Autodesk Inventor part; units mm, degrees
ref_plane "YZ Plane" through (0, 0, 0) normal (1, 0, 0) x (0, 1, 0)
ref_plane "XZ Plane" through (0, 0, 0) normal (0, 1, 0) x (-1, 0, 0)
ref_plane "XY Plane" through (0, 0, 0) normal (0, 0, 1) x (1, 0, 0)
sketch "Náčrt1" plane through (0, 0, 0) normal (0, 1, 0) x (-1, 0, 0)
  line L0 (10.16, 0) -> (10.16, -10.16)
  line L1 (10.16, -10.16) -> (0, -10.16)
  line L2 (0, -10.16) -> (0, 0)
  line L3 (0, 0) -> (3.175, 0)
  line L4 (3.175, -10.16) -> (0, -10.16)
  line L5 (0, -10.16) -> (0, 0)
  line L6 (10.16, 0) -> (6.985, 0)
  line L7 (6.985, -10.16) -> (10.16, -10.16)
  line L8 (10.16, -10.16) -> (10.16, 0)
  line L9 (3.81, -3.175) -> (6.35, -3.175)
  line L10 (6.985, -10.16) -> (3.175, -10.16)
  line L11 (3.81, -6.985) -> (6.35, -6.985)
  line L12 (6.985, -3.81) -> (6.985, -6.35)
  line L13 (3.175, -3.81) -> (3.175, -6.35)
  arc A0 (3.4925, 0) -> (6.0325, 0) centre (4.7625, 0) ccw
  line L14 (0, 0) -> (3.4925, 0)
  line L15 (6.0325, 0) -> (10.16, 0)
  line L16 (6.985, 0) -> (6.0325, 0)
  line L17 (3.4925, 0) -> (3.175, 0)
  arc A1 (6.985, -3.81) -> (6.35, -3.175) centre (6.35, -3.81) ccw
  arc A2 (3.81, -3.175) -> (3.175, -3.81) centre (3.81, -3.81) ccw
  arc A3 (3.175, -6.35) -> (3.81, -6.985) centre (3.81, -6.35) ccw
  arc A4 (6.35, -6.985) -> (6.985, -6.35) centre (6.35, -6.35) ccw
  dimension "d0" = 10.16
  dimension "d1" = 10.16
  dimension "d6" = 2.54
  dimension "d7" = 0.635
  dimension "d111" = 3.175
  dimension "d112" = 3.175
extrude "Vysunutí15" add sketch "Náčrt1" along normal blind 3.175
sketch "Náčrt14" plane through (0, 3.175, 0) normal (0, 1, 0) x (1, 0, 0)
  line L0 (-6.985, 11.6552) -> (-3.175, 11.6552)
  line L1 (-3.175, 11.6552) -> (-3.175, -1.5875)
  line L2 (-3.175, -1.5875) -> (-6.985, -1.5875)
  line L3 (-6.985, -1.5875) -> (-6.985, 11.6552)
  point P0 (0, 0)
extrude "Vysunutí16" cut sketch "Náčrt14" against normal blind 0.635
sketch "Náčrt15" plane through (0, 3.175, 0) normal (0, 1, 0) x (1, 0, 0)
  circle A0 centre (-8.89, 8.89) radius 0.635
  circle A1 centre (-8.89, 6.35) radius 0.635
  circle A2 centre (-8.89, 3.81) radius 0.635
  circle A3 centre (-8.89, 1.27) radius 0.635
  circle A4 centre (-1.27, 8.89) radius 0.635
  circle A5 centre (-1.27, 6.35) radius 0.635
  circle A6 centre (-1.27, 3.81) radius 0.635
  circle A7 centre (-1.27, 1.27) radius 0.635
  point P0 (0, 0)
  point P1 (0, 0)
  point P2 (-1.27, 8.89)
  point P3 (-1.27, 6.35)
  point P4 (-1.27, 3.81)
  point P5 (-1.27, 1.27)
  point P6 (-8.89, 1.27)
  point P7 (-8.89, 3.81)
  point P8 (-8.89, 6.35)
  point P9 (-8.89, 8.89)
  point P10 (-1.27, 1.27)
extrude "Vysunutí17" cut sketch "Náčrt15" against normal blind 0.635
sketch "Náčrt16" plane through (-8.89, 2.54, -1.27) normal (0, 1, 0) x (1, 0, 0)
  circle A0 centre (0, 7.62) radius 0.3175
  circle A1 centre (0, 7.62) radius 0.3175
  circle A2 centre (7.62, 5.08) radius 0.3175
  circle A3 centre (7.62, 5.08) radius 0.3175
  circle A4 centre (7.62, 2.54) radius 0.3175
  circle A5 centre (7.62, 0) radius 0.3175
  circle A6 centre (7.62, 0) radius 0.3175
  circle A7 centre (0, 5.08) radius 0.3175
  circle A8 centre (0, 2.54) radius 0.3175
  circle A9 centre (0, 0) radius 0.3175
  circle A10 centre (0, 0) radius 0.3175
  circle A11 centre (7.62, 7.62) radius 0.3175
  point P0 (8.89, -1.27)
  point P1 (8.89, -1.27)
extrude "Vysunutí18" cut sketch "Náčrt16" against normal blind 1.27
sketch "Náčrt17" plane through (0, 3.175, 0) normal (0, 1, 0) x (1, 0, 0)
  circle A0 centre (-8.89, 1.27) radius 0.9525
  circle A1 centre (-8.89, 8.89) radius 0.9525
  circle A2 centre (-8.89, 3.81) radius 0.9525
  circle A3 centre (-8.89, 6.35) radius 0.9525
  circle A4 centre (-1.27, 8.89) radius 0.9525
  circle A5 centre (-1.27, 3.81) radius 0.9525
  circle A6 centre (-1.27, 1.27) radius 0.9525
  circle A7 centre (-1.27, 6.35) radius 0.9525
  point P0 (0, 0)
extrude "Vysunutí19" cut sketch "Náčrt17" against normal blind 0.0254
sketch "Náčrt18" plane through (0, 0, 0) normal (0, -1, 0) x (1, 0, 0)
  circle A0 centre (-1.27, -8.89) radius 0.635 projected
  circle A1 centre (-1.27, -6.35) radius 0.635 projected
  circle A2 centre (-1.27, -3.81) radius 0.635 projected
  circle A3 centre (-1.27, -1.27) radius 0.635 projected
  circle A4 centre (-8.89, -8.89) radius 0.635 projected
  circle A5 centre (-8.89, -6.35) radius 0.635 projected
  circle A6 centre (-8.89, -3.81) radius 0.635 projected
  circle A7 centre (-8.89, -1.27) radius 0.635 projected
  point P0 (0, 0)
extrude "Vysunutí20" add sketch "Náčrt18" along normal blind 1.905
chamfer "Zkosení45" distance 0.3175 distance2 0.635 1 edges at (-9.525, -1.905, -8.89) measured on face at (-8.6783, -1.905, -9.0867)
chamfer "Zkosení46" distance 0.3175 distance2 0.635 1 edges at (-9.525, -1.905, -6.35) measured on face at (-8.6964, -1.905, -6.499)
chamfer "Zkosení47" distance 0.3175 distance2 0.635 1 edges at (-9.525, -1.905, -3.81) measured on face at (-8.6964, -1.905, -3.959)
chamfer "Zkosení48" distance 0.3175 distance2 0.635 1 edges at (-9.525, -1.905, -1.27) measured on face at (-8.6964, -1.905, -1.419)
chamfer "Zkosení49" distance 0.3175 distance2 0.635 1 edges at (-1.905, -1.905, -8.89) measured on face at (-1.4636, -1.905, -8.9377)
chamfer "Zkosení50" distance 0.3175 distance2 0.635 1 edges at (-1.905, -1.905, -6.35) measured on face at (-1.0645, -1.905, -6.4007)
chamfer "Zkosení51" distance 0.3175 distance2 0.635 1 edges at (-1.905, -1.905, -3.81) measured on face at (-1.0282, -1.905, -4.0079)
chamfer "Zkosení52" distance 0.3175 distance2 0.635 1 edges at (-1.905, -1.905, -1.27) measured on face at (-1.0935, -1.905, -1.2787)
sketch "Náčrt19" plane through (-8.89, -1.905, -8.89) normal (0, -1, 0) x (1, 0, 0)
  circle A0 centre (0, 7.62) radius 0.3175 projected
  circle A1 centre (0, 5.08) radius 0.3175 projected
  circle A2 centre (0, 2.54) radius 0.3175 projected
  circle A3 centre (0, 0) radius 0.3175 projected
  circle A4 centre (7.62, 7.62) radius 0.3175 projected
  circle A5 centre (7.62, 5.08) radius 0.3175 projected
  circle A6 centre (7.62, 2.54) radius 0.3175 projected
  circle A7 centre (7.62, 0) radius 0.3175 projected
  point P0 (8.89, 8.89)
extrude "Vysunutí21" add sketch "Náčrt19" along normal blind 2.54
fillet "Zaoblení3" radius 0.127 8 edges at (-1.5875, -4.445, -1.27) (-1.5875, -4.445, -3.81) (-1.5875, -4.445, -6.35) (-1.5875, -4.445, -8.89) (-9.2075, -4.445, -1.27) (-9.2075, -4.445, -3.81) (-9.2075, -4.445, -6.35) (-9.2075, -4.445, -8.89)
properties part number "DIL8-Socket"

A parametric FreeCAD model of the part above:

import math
import FreeCAD as App
import Part
import Sketcher
from FreeCAD import Vector
Q = App.Units.Quantity


def edges_at(feature, points):
    """Names of the edges that pass closest to the given points."""
    edges = feature.Shape.Edges
    near = lambda p: min(range(len(edges)), key=lambda i: edges[i].distToShape(Part.Vertex(*p))[0])
    return sorted({f"Edge{near(p) + 1}" for p in points})

doc = App.newDocument("Part")
body = doc.addObject("PartDesign::Body", "Body")

# Sketch on XZ plane
sketch1 = body.newObject("Sketcher::SketchObject", "Sketch")
sketch1.AttachmentSupport = (doc.getObject("XZ_Plane"), [""])
sketch1.MapMode = "FlatFace"
sketch1.addGeometry([
    Part.LineSegment(Vector(-10.2, -10.2, 0), Vector(-10.2, 0, 0)),  # 0
    Part.LineSegment(Vector(-10.2, 0, 0), Vector(-6, 0, 0)),  # 1
    Part.ArcOfCircle(Part.Circle(Vector(-4.8, 0, 0), Vector(0, 0, 1), 1.3), math.radians(180), math.radians(360)),  # 2
    Part.LineSegment(Vector(-3.5, 0, 0), Vector(0, 0, 0)),  # 3
    Part.LineSegment(Vector(0, 0, 0), Vector(0, -10.2, 0)),  # 4
    Part.LineSegment(Vector(0, -10.2, 0), Vector(-10.2, -10.2, 0)),  # 5
    Part.ArcOfCircle(Part.Circle(Vector(-3.8, -3.8, 0), Vector(0, 0, 1), 0.6), math.radians(0), math.radians(90)),  # 6
    Part.LineSegment(Vector(-3.8, -3.2, 0), Vector(-6.3, -3.2, 0)),  # 7
    Part.ArcOfCircle(Part.Circle(Vector(-6.3, -3.8, 0), Vector(0, 0, 1), 0.6), math.radians(90), math.radians(180)),  # 8
    Part.LineSegment(Vector(-7, -3.8, 0), Vector(-7, -6.3, 0)),  # 9
    Part.ArcOfCircle(Part.Circle(Vector(-6.3, -6.3, 0), Vector(0, 0, 1), 0.6), math.radians(180), math.radians(270)),  # 10
    Part.LineSegment(Vector(-6.3, -7, 0), Vector(-3.8, -7, 0)),  # 11
    Part.ArcOfCircle(Part.Circle(Vector(-3.8, -6.3, 0), Vector(0, 0, 1), 0.6), math.radians(-90), math.radians(0)),  # 12
    Part.LineSegment(Vector(-3.2, -6.3, 0), Vector(-3.2, -3.8, 0)),  # 13
], False)
sketch1.addConstraint([
    Sketcher.Constraint("Coincident", 0, 2, 1, 1),
    Sketcher.Constraint("Coincident", 1, 2, 2, 1),
    Sketcher.Constraint("Coincident", 2, 2, 3, 1),
    Sketcher.Constraint("Coincident", 3, 2, 4, 1),
    Sketcher.Constraint("Coincident", 4, 2, 5, 1),
    Sketcher.Constraint("Coincident", 5, 2, 0, 1),
    Sketcher.Constraint("Tangent", 6, 2, 7, 1),
    Sketcher.Constraint("Tangent", 7, 2, 8, 1),
    Sketcher.Constraint("Tangent", 8, 2, 9, 1),
    Sketcher.Constraint("Tangent", 9, 2, 10, 1),
    Sketcher.Constraint("Tangent", 10, 2, 11, 1),
    Sketcher.Constraint("Tangent", 11, 2, 12, 1),
    Sketcher.Constraint("Tangent", 12, 2, 13, 1),
    Sketcher.Constraint("Tangent", 13, 2, 6, 1),
    Sketcher.Constraint("Vertical", 0),
    Sketcher.Constraint("Horizontal", 1),
    Sketcher.Constraint("Horizontal", 3),
    Sketcher.Constraint("Vertical", 4),
    Sketcher.Constraint("Horizontal", 5),
    Sketcher.Constraint("Horizontal", 7),
    Sketcher.Constraint("Vertical", 9),
    Sketcher.Constraint("Horizontal", 11),
    Sketcher.Constraint("Vertical", 13),
    Sketcher.Constraint("Coincident", 3, 2, -1, 1),
    Sketcher.Constraint("Equal", 6, 8),
    Sketcher.Constraint("Equal", 8, 10),
    Sketcher.Constraint("Equal", 10, 12),
    Sketcher.Constraint("PointOnObject", 2, 3, -1),
    Sketcher.Constraint("PointOnObject", 0, 2, -1),
    Sketcher.Constraint("Equal", 5, 0),
    Sketcher.Constraint("Equal", 11, 9),
    Sketcher.Constraint("Radius", 2, Q("0.05 in")),
    Sketcher.Constraint("DistanceX", 5, 2, 5, 1, Q("0.4 in")),
    Sketcher.Constraint("DistanceX", 7, 2, 7, 1, Q("0.1 in")),
    Sketcher.Constraint("Radius", 6, Q("0.025 in")),
    Sketcher.Constraint("DistanceY", 6, 2, -1, 1, Q("0.125 in")),
    Sketcher.Constraint("DistanceX", 12, 2, -1, 1, Q("0.125 in")),
    Sketcher.Constraint("DistanceX", 1, 1, 1, 2, Q("0.1625 in")),
])
pad1 = body.newObject("PartDesign::Pad", "Pad")
pad1.Profile = sketch1
pad1.Length = Q("0.125 in")
pad1.Reversed = True

# Sketch on XZ plane
sketch2 = body.newObject("Sketcher::SketchObject", "Sketch001")
sketch2.AttachmentSupport = (doc.getObject("XZ_Plane"), [""])
sketch2.MapMode = "FlatFace"
sketch2.AttachmentOffset = App.Placement(Vector(0, 0, -0.125 * 25.4), App.Rotation())
sketch2.addGeometry([
    Part.LineSegment(Vector(-3.2, -11.7, 0), Vector(-7, -11.7, 0)),
    Part.LineSegment(Vector(-7, -11.7, 0), Vector(-7, 1.6, 0)),
    Part.LineSegment(Vector(-7, 1.6, 0), Vector(-3.2, 1.6, 0)),
    Part.LineSegment(Vector(-3.2, 1.6, 0), Vector(-3.2, -11.7, 0)),
], False)
sketch2.addConstraint([
    Sketcher.Constraint("Coincident", 0, 2, 1, 1),
    Sketcher.Constraint("Coincident", 1, 2, 2, 1),
    Sketcher.Constraint("Coincident", 2, 2, 3, 1),
    Sketcher.Constraint("Coincident", 3, 2, 0, 1),
    Sketcher.Constraint("Horizontal", 0),
    Sketcher.Constraint("Vertical", 1),
    Sketcher.Constraint("Horizontal", 2),
    Sketcher.Constraint("Vertical", 3),
    Sketcher.Constraint("DistanceX", 0, 2, 0, 1, Q("0.15 in")),
    Sketcher.Constraint("DistanceX", 0, 2, -1, 1, Q("0.275 in")),
    Sketcher.Constraint("DistanceY", -1, 1, 1, 2, Q("0.0625 in")),
    Sketcher.Constraint("DistanceY", 1, 1, 1, 2, Q("13.2427 mm")),
])
pocket1 = body.newObject("PartDesign::Pocket", "Pocket")
pocket1.Profile = sketch2
pocket1.Length = Q("0.025 in")
pocket1.Reversed = True

# Sketch on XZ plane
sketch3 = body.newObject("Sketcher::SketchObject", "Sketch002")
sketch3.AttachmentSupport = (doc.getObject("XZ_Plane"), [""])
sketch3.MapMode = "FlatFace"
sketch3.AttachmentOffset = App.Placement(Vector(0, 0, -0.125 * 25.4), App.Rotation())
sketch3.addGeometry([
    Part.Circle(Vector(-8.9, -8.9, 0), Vector(0, 0, 1), 0.6),  # 0
    Part.Circle(Vector(-8.9, -6.3, 0), Vector(0, 0, 1), 0.6),  # 1
    Part.Circle(Vector(-8.9, -3.8, 0), Vector(0, 0, 1), 0.6),  # 2
    Part.Circle(Vector(-8.9, -1.3, 0), Vector(0, 0, 1), 0.6),  # 3
    Part.Circle(Vector(-1.3, -8.9, 0), Vector(0, 0, 1), 0.6),  # 4
    Part.Circle(Vector(-1.3, -6.3, 0), Vector(0, 0, 1), 0.6),  # 5
    Part.Circle(Vector(-1.3, -3.8, 0), Vector(0, 0, 1), 0.6),  # 6
    Part.Circle(Vector(-1.3, -1.3, 0), Vector(0, 0, 1), 0.6),  # 7
], False)
sketch3.addConstraint([
    Sketcher.Constraint("Equal", 0, 1),
    Sketcher.Constraint("Equal", 1, 2),
    Sketcher.Constraint("Equal", 2, 3),
    Sketcher.Constraint("Equal", 3, 4),
    Sketcher.Constraint("Equal", 4, 5),
    Sketcher.Constraint("Equal", 5, 6),
    Sketcher.Constraint("Equal", 6, 7),
    Sketcher.Constraint("Horizontal", 0, 3, 4, 3),
    Sketcher.Constraint("Horizontal", 1, 3, 5, 3),
    Sketcher.Constraint("Horizontal", 2, 3, 6, 3),
    Sketcher.Constraint("Horizontal", 3, 3, 7, 3),
    Sketcher.Constraint("Vertical", 0, 3, 1, 3),
    Sketcher.Constraint("Vertical", 1, 3, 2, 3),
    Sketcher.Constraint("Vertical", 2, 3, 3, 3),
    Sketcher.Constraint("Vertical", 4, 3, 5, 3),
    Sketcher.Constraint("Vertical", 5, 3, 6, 3),
    Sketcher.Constraint("Vertical", 6, 3, 7, 3),
    Sketcher.Constraint("Diameter", 0, Q("0.05 in")),
    Sketcher.Constraint("DistanceY", 0, 3, 1, 3, Q("0.1 in")),
    Sketcher.Constraint("DistanceY", 1, 3, 2, 3, Q("0.1 in")),
    Sketcher.Constraint("DistanceY", 2, 3, 3, 3, Q("0.1 in")),
    Sketcher.Constraint("DistanceX", 0, 3, 4, 3, Q("0.3 in")),
    Sketcher.Constraint("DistanceX", 0, 3, -1, 1, Q("0.35 in")),
    Sketcher.Constraint("DistanceY", 0, 3, -1, 1, Q("0.35 in")),
])
pocket2 = body.newObject("PartDesign::Pocket", "Pocket001")
pocket2.Profile = sketch3
pocket2.Length = Q("0.025 in")
pocket2.Reversed = True

# Sketch on XZ plane
sketch4 = body.newObject("Sketcher::SketchObject", "Sketch003")
sketch4.AttachmentSupport = (doc.getObject("XZ_Plane"), [""])
sketch4.MapMode = "FlatFace"
sketch4.AttachmentOffset = App.Placement(Vector(0, 0, -0.1 * 25.4), App.Rotation())
sketch4.addGeometry([
    Part.Circle(Vector(-8.89, -8.89, 0), Vector(0, 0, 1), 0.32),  # 0
    Part.Circle(Vector(-1.27, -6.35, 0), Vector(0, 0, 1), 0.32),  # 1
    Part.Circle(Vector(-1.27, -3.81, 0), Vector(0, 0, 1), 0.32),  # 2
    Part.Circle(Vector(-1.27, -1.27, 0), Vector(0, 0, 1), 0.32),  # 3
    Part.Circle(Vector(-8.89, -6.35, 0), Vector(0, 0, 1), 0.32),  # 4
    Part.Circle(Vector(-8.89, -3.81, 0), Vector(0, 0, 1), 0.32),  # 5
    Part.Circle(Vector(-8.89, -1.27, 0), Vector(0, 0, 1), 0.32),  # 6
    Part.Circle(Vector(-1.27, -8.89, 0), Vector(0, 0, 1), 0.32),  # 7
], False)
sketch4.addConstraint([
    Sketcher.Constraint("Equal", 0, 1),
    Sketcher.Constraint("Equal", 1, 2),
    Sketcher.Constraint("Equal", 2, 3),
    Sketcher.Constraint("Equal", 3, 4),
    Sketcher.Constraint("Equal", 4, 5),
    Sketcher.Constraint("Equal", 5, 6),
    Sketcher.Constraint("Equal", 6, 7),
    Sketcher.Constraint("Horizontal", 1, 3, 4, 3),
    Sketcher.Constraint("Horizontal", 2, 3, 5, 3),
    Sketcher.Constraint("Horizontal", 3, 3, 6, 3),
    Sketcher.Constraint("Horizontal", 0, 3, 7, 3),
    Sketcher.Constraint("Vertical", 1, 3, 2, 3),
    Sketcher.Constraint("Vertical", 2, 3, 3, 3),
    Sketcher.Constraint("Vertical", 0, 3, 4, 3),
    Sketcher.Constraint("Vertical", 4, 3, 5, 3),
    Sketcher.Constraint("Vertical", 5, 3, 6, 3),
    Sketcher.Constraint("Vertical", 3, 3, 7, 3),
    Sketcher.Constraint("Diameter", 0, Q("0.025 in")),
    Sketcher.Constraint("DistanceX", 0, 3, 1, 3, Q("0.3 in")),
    Sketcher.Constraint("DistanceY", 0, 3, 1, 3, Q("0.1 in")),
    Sketcher.Constraint("DistanceY", 1, 3, 2, 3, Q("0.1 in")),
    Sketcher.Constraint("DistanceY", 2, 3, 3, 3, Q("0.1 in")),
    Sketcher.Constraint("DistanceX", 0, 3, -1, 1, Q("0.35 in")),
    Sketcher.Constraint("DistanceY", 0, 3, -1, 1, Q("0.35 in")),
])
pocket3 = body.newObject("PartDesign::Pocket", "Pocket002")
pocket3.Profile = sketch4
pocket3.Length = Q("0.05 in")
pocket3.Reversed = True

# Sketch on XZ plane
sketch5 = body.newObject("Sketcher::SketchObject", "Sketch004")
sketch5.AttachmentSupport = (doc.getObject("XZ_Plane"), [""])
sketch5.MapMode = "FlatFace"
sketch5.AttachmentOffset = App.Placement(Vector(0, 0, -0.125 * 25.4), App.Rotation())
sketch5.addGeometry([
    Part.Circle(Vector(-8.9, -1.3, 0), Vector(0, 0, 1), 1),  # 0
    Part.Circle(Vector(-8.9, -8.9, 0), Vector(0, 0, 1), 1),  # 1
    Part.Circle(Vector(-8.9, -3.8, 0), Vector(0, 0, 1), 1),  # 2
    Part.Circle(Vector(-8.9, -6.3, 0), Vector(0, 0, 1), 1),  # 3
    Part.Circle(Vector(-1.3, -8.9, 0), Vector(0, 0, 1), 1),  # 4
    Part.Circle(Vector(-1.3, -3.8, 0), Vector(0, 0, 1), 1),  # 5
    Part.Circle(Vector(-1.3, -1.3, 0), Vector(0, 0, 1), 1),  # 6
    Part.Circle(Vector(-1.3, -6.3, 0), Vector(0, 0, 1), 1),  # 7
], False)
sketch5.addConstraint([
    Sketcher.Constraint("Equal", 0, 1),
    Sketcher.Constraint("Equal", 1, 2),
    Sketcher.Constraint("Equal", 2, 3),
    Sketcher.Constraint("Equal", 3, 4),
    Sketcher.Constraint("Equal", 4, 5),
    Sketcher.Constraint("Equal", 5, 6),
    Sketcher.Constraint("Equal", 6, 7),
    Sketcher.Constraint("Horizontal", 1, 3, 4, 3),
    Sketcher.Constraint("Horizontal", 2, 3, 5, 3),
    Sketcher.Constraint("Horizontal", 0, 3, 6, 3),
    Sketcher.Constraint("Horizontal", 3, 3, 7, 3),
    Sketcher.Constraint("Vertical", 0, 3, 1, 3),
    Sketcher.Constraint("Vertical", 1, 3, 2, 3),
    Sketcher.Constraint("Vertical", 2, 3, 3, 3),
    Sketcher.Constraint("Vertical", 4, 3, 5, 3),
    Sketcher.Constraint("Vertical", 5, 3, 6, 3),
    Sketcher.Constraint("Vertical", 6, 3, 7, 3),
    Sketcher.Constraint("Diameter", 0, Q("0.075 in")),
    Sketcher.Constraint("DistanceY", 1, 3, 0, 3, Q("0.3 in")),
    Sketcher.Constraint("DistanceY", 2, 3, 0, 3, Q("0.1 in")),
    Sketcher.Constraint("DistanceY", 3, 3, 2, 3, Q("0.1 in")),
    Sketcher.Constraint("DistanceX", 1, 3, 4, 3, Q("0.3 in")),
    Sketcher.Constraint("DistanceX", 0, 3, -1, 1, Q("0.35 in")),
    Sketcher.Constraint("DistanceY", 0, 3, -1, 1, Q("0.05 in")),
])
pocket4 = body.newObject("PartDesign::Pocket", "Pocket003")
pocket4.Profile = sketch5
pocket4.Length = Q("0.001 in")
pocket4.Reversed = True

# Sketch on XZ plane
sketch6 = body.newObject("Sketcher::SketchObject", "Sketch005")
sketch6.AttachmentSupport = (doc.getObject("XZ_Plane"), [""])
sketch6.MapMode = "FlatFace"
sketch6.addGeometry([
    Part.Circle(Vector(-1.3, -8.9, 0), Vector(0, 0, 1), 0.6),  # 0
    Part.Circle(Vector(-1.3, -6.3, 0), Vector(0, 0, 1), 0.6),  # 1
    Part.Circle(Vector(-1.3, -3.8, 0), Vector(0, 0, 1), 0.6),  # 2
    Part.Circle(Vector(-1.3, -1.3, 0), Vector(0, 0, 1), 0.6),  # 3
    Part.Circle(Vector(-8.9, -8.9, 0), Vector(0, 0, 1), 0.6),  # 4
    Part.Circle(Vector(-8.9, -6.3, 0), Vector(0, 0, 1), 0.6),  # 5
    Part.Circle(Vector(-8.9, -3.8, 0), Vector(0, 0, 1), 0.6),  # 6
    Part.Circle(Vector(-8.9, -1.3, 0), Vector(0, 0, 1), 0.6),  # 7
], False)
sketch6.addConstraint([
    Sketcher.Constraint("Equal", 0, 1),
    Sketcher.Constraint("Equal", 1, 2),
    Sketcher.Constraint("Equal", 2, 3),
    Sketcher.Constraint("Equal", 3, 4),
    Sketcher.Constraint("Equal", 4, 5),
    Sketcher.Constraint("Equal", 5, 6),
    Sketcher.Constraint("Equal", 6, 7),
    Sketcher.Constraint("Horizontal", 0, 3, 4, 3),
    Sketcher.Constraint("Horizontal", 1, 3, 5, 3),
    Sketcher.Constraint("Horizontal", 2, 3, 6, 3),
    Sketcher.Constraint("Horizontal", 3, 3, 7, 3),
    Sketcher.Constraint("Vertical", 0, 3, 1, 3),
    Sketcher.Constraint("Vertical", 1, 3, 2, 3),
    Sketcher.Constraint("Vertical", 2, 3, 3, 3),
    Sketcher.Constraint("Vertical", 4, 3, 5, 3),
    Sketcher.Constraint("Vertical", 5, 3, 6, 3),
    Sketcher.Constraint("Vertical", 6, 3, 7, 3),
    Sketcher.Constraint("Diameter", 0, Q("0.05 in")),
    Sketcher.Constraint("DistanceY", 0, 3, 1, 3, Q("0.1 in")),
    Sketcher.Constraint("DistanceY", 1, 3, 2, 3, Q("0.1 in")),
    Sketcher.Constraint("DistanceY", 2, 3, 3, 3, Q("0.1 in")),
    Sketcher.Constraint("DistanceX", 4, 3, 0, 3, Q("0.3 in")),
    Sketcher.Constraint("DistanceX", 0, 3, -1, 1, Q("0.05 in")),
    Sketcher.Constraint("DistanceY", 0, 3, -1, 1, Q("0.35 in")),
])
pad2 = body.newObject("PartDesign::Pad", "Pad001")
pad2.Profile = sketch6
pad2.Length = Q("0.075 in")
doc.recompute()

chamfer = body.newObject("PartDesign::Chamfer", "Chamfer")
chamfer.Base = (pad2, edges_at(pad2, [(-9.525, -1.905, -8.89)]))
chamfer.ChamferType = "Two distances"
chamfer.Size = Q("0.0125 in")
chamfer.Size2 = Q("0.025 in")
chamfer.FlipDirection = True
doc.recompute()

chamfer2 = body.newObject("PartDesign::Chamfer", "Chamfer001")
chamfer2.Base = (chamfer, edges_at(chamfer, [(-9.525, -1.905, -6.35)]))
chamfer2.ChamferType = "Two distances"
chamfer2.Size = Q("0.0125 in")
chamfer2.Size2 = Q("0.025 in")
chamfer2.FlipDirection = True
doc.recompute()

chamfer3 = body.newObject("PartDesign::Chamfer", "Chamfer002")
chamfer3.Base = (chamfer2, edges_at(chamfer2, [(-9.525, -1.905, -3.81)]))
chamfer3.ChamferType = "Two distances"
chamfer3.Size = Q("0.0125 in")
chamfer3.Size2 = Q("0.025 in")
chamfer3.FlipDirection = True
doc.recompute()

chamfer4 = body.newObject("PartDesign::Chamfer", "Chamfer003")
chamfer4.Base = (chamfer3, edges_at(chamfer3, [(-9.525, -1.905, -1.27)]))
chamfer4.ChamferType = "Two distances"
chamfer4.Size = Q("0.0125 in")
chamfer4.Size2 = Q("0.025 in")
chamfer4.FlipDirection = True
doc.recompute()

chamfer5 = body.newObject("PartDesign::Chamfer", "Chamfer004")
chamfer5.Base = (chamfer4, edges_at(chamfer4, [(-1.905, -1.905, -8.89)]))
chamfer5.ChamferType = "Two distances"
chamfer5.Size = Q("0.0125 in")
chamfer5.Size2 = Q("0.025 in")
chamfer5.FlipDirection = True
doc.recompute()

chamfer6 = body.newObject("PartDesign::Chamfer", "Chamfer005")
chamfer6.Base = (chamfer5, edges_at(chamfer5, [(-1.905, -1.905, -6.35)]))
chamfer6.ChamferType = "Two distances"
chamfer6.Size = Q("0.0125 in")
chamfer6.Size2 = Q("0.025 in")
chamfer6.FlipDirection = True
doc.recompute()

chamfer7 = body.newObject("PartDesign::Chamfer", "Chamfer006")
chamfer7.Base = (chamfer6, edges_at(chamfer6, [(-1.905, -1.905, -3.81)]))
chamfer7.ChamferType = "Two distances"
chamfer7.Size = Q("0.0125 in")
chamfer7.Size2 = Q("0.025 in")
chamfer7.FlipDirection = True
doc.recompute()

chamfer8 = body.newObject("PartDesign::Chamfer", "Chamfer007")
chamfer8.Base = (chamfer7, edges_at(chamfer7, [(-1.905, -1.905, -1.27)]))
chamfer8.ChamferType = "Two distances"
chamfer8.Size = Q("0.0125 in")
chamfer8.Size2 = Q("0.025 in")
chamfer8.FlipDirection = True

# Sketch on XZ plane
sketch7 = body.newObject("Sketcher::SketchObject", "Sketch006")
sketch7.AttachmentSupport = (doc.getObject("XZ_Plane"), [""])
sketch7.MapMode = "FlatFace"
sketch7.AttachmentOffset = App.Placement(Vector(0, 0, 0.075 * 25.4), App.Rotation())
sketch7.addGeometry([
    Part.Circle(Vector(-8.89, -1.27, 0), Vector(0, 0, 1), 0.32),  # 0
    Part.Circle(Vector(-8.89, -3.81, 0), Vector(0, 0, 1), 0.32),  # 1
    Part.Circle(Vector(-8.89, -6.35, 0), Vector(0, 0, 1), 0.32),  # 2
    Part.Circle(Vector(-8.89, -8.89, 0), Vector(0, 0, 1), 0.32),  # 3
    Part.Circle(Vector(-1.27, -1.27, 0), Vector(0, 0, 1), 0.32),  # 4
    Part.Circle(Vector(-1.27, -3.81, 0), Vector(0, 0, 1), 0.32),  # 5
    Part.Circle(Vector(-1.27, -6.35, 0), Vector(0, 0, 1), 0.32),  # 6
    Part.Circle(Vector(-1.27, -8.89, 0), Vector(0, 0, 1), 0.32),  # 7
], False)
sketch7.addConstraint([
    Sketcher.Constraint("Equal", 0, 1),
    Sketcher.Constraint("Equal", 1, 2),
    Sketcher.Constraint("Equal", 2, 3),
    Sketcher.Constraint("Equal", 3, 4),
    Sketcher.Constraint("Equal", 4, 5),
    Sketcher.Constraint("Equal", 5, 6),
    Sketcher.Constraint("Equal", 6, 7),
    Sketcher.Constraint("Horizontal", 0, 3, 4, 3),
    Sketcher.Constraint("Horizontal", 1, 3, 5, 3),
    Sketcher.Constraint("Horizontal", 2, 3, 6, 3),
    Sketcher.Constraint("Horizontal", 3, 3, 7, 3),
    Sketcher.Constraint("Vertical", 0, 3, 1, 3),
    Sketcher.Constraint("Vertical", 1, 3, 2, 3),
    Sketcher.Constraint("Vertical", 2, 3, 3, 3),
    Sketcher.Constraint("Vertical", 4, 3, 5, 3),
    Sketcher.Constraint("Vertical", 5, 3, 6, 3),
    Sketcher.Constraint("Vertical", 6, 3, 7, 3),
    Sketcher.Constraint("Diameter", 0, Q("0.025 in")),
    Sketcher.Constraint("DistanceY", 1, 3, 0, 3, Q("0.1 in")),
    Sketcher.Constraint("DistanceY", 2, 3, 1, 3, Q("0.1 in")),
    Sketcher.Constraint("DistanceY", 3, 3, 2, 3, Q("0.1 in")),
    Sketcher.Constraint("DistanceX", 0, 3, 4, 3, Q("0.3 in")),
    Sketcher.Constraint("DistanceX", 0, 3, -1, 1, Q("0.35 in")),
    Sketcher.Constraint("DistanceY", 0, 3, -1, 1, Q("0.05 in")),
])
pad3 = body.newObject("PartDesign::Pad", "Pad002")
pad3.Profile = sketch7
pad3.Length = Q("0.1 in")
doc.recompute()

fillet = body.newObject("PartDesign::Fillet", "Fillet")
fillet.Base = (pad3, edges_at(pad3, [
    (-1.587, -4.445, -1.27),
    (-1.587, -4.445, -3.81),
    (-1.587, -4.445, -6.35),
    (-1.587, -4.445, -8.89),
    (-9.207, -4.445, -1.27),
    (-9.207, -4.445, -3.81),
    (-9.207, -4.445, -6.35),
    (-9.207, -4.445, -8.89),
]))
fillet.Radius = Q("0.005 in")

doc.recompute()
